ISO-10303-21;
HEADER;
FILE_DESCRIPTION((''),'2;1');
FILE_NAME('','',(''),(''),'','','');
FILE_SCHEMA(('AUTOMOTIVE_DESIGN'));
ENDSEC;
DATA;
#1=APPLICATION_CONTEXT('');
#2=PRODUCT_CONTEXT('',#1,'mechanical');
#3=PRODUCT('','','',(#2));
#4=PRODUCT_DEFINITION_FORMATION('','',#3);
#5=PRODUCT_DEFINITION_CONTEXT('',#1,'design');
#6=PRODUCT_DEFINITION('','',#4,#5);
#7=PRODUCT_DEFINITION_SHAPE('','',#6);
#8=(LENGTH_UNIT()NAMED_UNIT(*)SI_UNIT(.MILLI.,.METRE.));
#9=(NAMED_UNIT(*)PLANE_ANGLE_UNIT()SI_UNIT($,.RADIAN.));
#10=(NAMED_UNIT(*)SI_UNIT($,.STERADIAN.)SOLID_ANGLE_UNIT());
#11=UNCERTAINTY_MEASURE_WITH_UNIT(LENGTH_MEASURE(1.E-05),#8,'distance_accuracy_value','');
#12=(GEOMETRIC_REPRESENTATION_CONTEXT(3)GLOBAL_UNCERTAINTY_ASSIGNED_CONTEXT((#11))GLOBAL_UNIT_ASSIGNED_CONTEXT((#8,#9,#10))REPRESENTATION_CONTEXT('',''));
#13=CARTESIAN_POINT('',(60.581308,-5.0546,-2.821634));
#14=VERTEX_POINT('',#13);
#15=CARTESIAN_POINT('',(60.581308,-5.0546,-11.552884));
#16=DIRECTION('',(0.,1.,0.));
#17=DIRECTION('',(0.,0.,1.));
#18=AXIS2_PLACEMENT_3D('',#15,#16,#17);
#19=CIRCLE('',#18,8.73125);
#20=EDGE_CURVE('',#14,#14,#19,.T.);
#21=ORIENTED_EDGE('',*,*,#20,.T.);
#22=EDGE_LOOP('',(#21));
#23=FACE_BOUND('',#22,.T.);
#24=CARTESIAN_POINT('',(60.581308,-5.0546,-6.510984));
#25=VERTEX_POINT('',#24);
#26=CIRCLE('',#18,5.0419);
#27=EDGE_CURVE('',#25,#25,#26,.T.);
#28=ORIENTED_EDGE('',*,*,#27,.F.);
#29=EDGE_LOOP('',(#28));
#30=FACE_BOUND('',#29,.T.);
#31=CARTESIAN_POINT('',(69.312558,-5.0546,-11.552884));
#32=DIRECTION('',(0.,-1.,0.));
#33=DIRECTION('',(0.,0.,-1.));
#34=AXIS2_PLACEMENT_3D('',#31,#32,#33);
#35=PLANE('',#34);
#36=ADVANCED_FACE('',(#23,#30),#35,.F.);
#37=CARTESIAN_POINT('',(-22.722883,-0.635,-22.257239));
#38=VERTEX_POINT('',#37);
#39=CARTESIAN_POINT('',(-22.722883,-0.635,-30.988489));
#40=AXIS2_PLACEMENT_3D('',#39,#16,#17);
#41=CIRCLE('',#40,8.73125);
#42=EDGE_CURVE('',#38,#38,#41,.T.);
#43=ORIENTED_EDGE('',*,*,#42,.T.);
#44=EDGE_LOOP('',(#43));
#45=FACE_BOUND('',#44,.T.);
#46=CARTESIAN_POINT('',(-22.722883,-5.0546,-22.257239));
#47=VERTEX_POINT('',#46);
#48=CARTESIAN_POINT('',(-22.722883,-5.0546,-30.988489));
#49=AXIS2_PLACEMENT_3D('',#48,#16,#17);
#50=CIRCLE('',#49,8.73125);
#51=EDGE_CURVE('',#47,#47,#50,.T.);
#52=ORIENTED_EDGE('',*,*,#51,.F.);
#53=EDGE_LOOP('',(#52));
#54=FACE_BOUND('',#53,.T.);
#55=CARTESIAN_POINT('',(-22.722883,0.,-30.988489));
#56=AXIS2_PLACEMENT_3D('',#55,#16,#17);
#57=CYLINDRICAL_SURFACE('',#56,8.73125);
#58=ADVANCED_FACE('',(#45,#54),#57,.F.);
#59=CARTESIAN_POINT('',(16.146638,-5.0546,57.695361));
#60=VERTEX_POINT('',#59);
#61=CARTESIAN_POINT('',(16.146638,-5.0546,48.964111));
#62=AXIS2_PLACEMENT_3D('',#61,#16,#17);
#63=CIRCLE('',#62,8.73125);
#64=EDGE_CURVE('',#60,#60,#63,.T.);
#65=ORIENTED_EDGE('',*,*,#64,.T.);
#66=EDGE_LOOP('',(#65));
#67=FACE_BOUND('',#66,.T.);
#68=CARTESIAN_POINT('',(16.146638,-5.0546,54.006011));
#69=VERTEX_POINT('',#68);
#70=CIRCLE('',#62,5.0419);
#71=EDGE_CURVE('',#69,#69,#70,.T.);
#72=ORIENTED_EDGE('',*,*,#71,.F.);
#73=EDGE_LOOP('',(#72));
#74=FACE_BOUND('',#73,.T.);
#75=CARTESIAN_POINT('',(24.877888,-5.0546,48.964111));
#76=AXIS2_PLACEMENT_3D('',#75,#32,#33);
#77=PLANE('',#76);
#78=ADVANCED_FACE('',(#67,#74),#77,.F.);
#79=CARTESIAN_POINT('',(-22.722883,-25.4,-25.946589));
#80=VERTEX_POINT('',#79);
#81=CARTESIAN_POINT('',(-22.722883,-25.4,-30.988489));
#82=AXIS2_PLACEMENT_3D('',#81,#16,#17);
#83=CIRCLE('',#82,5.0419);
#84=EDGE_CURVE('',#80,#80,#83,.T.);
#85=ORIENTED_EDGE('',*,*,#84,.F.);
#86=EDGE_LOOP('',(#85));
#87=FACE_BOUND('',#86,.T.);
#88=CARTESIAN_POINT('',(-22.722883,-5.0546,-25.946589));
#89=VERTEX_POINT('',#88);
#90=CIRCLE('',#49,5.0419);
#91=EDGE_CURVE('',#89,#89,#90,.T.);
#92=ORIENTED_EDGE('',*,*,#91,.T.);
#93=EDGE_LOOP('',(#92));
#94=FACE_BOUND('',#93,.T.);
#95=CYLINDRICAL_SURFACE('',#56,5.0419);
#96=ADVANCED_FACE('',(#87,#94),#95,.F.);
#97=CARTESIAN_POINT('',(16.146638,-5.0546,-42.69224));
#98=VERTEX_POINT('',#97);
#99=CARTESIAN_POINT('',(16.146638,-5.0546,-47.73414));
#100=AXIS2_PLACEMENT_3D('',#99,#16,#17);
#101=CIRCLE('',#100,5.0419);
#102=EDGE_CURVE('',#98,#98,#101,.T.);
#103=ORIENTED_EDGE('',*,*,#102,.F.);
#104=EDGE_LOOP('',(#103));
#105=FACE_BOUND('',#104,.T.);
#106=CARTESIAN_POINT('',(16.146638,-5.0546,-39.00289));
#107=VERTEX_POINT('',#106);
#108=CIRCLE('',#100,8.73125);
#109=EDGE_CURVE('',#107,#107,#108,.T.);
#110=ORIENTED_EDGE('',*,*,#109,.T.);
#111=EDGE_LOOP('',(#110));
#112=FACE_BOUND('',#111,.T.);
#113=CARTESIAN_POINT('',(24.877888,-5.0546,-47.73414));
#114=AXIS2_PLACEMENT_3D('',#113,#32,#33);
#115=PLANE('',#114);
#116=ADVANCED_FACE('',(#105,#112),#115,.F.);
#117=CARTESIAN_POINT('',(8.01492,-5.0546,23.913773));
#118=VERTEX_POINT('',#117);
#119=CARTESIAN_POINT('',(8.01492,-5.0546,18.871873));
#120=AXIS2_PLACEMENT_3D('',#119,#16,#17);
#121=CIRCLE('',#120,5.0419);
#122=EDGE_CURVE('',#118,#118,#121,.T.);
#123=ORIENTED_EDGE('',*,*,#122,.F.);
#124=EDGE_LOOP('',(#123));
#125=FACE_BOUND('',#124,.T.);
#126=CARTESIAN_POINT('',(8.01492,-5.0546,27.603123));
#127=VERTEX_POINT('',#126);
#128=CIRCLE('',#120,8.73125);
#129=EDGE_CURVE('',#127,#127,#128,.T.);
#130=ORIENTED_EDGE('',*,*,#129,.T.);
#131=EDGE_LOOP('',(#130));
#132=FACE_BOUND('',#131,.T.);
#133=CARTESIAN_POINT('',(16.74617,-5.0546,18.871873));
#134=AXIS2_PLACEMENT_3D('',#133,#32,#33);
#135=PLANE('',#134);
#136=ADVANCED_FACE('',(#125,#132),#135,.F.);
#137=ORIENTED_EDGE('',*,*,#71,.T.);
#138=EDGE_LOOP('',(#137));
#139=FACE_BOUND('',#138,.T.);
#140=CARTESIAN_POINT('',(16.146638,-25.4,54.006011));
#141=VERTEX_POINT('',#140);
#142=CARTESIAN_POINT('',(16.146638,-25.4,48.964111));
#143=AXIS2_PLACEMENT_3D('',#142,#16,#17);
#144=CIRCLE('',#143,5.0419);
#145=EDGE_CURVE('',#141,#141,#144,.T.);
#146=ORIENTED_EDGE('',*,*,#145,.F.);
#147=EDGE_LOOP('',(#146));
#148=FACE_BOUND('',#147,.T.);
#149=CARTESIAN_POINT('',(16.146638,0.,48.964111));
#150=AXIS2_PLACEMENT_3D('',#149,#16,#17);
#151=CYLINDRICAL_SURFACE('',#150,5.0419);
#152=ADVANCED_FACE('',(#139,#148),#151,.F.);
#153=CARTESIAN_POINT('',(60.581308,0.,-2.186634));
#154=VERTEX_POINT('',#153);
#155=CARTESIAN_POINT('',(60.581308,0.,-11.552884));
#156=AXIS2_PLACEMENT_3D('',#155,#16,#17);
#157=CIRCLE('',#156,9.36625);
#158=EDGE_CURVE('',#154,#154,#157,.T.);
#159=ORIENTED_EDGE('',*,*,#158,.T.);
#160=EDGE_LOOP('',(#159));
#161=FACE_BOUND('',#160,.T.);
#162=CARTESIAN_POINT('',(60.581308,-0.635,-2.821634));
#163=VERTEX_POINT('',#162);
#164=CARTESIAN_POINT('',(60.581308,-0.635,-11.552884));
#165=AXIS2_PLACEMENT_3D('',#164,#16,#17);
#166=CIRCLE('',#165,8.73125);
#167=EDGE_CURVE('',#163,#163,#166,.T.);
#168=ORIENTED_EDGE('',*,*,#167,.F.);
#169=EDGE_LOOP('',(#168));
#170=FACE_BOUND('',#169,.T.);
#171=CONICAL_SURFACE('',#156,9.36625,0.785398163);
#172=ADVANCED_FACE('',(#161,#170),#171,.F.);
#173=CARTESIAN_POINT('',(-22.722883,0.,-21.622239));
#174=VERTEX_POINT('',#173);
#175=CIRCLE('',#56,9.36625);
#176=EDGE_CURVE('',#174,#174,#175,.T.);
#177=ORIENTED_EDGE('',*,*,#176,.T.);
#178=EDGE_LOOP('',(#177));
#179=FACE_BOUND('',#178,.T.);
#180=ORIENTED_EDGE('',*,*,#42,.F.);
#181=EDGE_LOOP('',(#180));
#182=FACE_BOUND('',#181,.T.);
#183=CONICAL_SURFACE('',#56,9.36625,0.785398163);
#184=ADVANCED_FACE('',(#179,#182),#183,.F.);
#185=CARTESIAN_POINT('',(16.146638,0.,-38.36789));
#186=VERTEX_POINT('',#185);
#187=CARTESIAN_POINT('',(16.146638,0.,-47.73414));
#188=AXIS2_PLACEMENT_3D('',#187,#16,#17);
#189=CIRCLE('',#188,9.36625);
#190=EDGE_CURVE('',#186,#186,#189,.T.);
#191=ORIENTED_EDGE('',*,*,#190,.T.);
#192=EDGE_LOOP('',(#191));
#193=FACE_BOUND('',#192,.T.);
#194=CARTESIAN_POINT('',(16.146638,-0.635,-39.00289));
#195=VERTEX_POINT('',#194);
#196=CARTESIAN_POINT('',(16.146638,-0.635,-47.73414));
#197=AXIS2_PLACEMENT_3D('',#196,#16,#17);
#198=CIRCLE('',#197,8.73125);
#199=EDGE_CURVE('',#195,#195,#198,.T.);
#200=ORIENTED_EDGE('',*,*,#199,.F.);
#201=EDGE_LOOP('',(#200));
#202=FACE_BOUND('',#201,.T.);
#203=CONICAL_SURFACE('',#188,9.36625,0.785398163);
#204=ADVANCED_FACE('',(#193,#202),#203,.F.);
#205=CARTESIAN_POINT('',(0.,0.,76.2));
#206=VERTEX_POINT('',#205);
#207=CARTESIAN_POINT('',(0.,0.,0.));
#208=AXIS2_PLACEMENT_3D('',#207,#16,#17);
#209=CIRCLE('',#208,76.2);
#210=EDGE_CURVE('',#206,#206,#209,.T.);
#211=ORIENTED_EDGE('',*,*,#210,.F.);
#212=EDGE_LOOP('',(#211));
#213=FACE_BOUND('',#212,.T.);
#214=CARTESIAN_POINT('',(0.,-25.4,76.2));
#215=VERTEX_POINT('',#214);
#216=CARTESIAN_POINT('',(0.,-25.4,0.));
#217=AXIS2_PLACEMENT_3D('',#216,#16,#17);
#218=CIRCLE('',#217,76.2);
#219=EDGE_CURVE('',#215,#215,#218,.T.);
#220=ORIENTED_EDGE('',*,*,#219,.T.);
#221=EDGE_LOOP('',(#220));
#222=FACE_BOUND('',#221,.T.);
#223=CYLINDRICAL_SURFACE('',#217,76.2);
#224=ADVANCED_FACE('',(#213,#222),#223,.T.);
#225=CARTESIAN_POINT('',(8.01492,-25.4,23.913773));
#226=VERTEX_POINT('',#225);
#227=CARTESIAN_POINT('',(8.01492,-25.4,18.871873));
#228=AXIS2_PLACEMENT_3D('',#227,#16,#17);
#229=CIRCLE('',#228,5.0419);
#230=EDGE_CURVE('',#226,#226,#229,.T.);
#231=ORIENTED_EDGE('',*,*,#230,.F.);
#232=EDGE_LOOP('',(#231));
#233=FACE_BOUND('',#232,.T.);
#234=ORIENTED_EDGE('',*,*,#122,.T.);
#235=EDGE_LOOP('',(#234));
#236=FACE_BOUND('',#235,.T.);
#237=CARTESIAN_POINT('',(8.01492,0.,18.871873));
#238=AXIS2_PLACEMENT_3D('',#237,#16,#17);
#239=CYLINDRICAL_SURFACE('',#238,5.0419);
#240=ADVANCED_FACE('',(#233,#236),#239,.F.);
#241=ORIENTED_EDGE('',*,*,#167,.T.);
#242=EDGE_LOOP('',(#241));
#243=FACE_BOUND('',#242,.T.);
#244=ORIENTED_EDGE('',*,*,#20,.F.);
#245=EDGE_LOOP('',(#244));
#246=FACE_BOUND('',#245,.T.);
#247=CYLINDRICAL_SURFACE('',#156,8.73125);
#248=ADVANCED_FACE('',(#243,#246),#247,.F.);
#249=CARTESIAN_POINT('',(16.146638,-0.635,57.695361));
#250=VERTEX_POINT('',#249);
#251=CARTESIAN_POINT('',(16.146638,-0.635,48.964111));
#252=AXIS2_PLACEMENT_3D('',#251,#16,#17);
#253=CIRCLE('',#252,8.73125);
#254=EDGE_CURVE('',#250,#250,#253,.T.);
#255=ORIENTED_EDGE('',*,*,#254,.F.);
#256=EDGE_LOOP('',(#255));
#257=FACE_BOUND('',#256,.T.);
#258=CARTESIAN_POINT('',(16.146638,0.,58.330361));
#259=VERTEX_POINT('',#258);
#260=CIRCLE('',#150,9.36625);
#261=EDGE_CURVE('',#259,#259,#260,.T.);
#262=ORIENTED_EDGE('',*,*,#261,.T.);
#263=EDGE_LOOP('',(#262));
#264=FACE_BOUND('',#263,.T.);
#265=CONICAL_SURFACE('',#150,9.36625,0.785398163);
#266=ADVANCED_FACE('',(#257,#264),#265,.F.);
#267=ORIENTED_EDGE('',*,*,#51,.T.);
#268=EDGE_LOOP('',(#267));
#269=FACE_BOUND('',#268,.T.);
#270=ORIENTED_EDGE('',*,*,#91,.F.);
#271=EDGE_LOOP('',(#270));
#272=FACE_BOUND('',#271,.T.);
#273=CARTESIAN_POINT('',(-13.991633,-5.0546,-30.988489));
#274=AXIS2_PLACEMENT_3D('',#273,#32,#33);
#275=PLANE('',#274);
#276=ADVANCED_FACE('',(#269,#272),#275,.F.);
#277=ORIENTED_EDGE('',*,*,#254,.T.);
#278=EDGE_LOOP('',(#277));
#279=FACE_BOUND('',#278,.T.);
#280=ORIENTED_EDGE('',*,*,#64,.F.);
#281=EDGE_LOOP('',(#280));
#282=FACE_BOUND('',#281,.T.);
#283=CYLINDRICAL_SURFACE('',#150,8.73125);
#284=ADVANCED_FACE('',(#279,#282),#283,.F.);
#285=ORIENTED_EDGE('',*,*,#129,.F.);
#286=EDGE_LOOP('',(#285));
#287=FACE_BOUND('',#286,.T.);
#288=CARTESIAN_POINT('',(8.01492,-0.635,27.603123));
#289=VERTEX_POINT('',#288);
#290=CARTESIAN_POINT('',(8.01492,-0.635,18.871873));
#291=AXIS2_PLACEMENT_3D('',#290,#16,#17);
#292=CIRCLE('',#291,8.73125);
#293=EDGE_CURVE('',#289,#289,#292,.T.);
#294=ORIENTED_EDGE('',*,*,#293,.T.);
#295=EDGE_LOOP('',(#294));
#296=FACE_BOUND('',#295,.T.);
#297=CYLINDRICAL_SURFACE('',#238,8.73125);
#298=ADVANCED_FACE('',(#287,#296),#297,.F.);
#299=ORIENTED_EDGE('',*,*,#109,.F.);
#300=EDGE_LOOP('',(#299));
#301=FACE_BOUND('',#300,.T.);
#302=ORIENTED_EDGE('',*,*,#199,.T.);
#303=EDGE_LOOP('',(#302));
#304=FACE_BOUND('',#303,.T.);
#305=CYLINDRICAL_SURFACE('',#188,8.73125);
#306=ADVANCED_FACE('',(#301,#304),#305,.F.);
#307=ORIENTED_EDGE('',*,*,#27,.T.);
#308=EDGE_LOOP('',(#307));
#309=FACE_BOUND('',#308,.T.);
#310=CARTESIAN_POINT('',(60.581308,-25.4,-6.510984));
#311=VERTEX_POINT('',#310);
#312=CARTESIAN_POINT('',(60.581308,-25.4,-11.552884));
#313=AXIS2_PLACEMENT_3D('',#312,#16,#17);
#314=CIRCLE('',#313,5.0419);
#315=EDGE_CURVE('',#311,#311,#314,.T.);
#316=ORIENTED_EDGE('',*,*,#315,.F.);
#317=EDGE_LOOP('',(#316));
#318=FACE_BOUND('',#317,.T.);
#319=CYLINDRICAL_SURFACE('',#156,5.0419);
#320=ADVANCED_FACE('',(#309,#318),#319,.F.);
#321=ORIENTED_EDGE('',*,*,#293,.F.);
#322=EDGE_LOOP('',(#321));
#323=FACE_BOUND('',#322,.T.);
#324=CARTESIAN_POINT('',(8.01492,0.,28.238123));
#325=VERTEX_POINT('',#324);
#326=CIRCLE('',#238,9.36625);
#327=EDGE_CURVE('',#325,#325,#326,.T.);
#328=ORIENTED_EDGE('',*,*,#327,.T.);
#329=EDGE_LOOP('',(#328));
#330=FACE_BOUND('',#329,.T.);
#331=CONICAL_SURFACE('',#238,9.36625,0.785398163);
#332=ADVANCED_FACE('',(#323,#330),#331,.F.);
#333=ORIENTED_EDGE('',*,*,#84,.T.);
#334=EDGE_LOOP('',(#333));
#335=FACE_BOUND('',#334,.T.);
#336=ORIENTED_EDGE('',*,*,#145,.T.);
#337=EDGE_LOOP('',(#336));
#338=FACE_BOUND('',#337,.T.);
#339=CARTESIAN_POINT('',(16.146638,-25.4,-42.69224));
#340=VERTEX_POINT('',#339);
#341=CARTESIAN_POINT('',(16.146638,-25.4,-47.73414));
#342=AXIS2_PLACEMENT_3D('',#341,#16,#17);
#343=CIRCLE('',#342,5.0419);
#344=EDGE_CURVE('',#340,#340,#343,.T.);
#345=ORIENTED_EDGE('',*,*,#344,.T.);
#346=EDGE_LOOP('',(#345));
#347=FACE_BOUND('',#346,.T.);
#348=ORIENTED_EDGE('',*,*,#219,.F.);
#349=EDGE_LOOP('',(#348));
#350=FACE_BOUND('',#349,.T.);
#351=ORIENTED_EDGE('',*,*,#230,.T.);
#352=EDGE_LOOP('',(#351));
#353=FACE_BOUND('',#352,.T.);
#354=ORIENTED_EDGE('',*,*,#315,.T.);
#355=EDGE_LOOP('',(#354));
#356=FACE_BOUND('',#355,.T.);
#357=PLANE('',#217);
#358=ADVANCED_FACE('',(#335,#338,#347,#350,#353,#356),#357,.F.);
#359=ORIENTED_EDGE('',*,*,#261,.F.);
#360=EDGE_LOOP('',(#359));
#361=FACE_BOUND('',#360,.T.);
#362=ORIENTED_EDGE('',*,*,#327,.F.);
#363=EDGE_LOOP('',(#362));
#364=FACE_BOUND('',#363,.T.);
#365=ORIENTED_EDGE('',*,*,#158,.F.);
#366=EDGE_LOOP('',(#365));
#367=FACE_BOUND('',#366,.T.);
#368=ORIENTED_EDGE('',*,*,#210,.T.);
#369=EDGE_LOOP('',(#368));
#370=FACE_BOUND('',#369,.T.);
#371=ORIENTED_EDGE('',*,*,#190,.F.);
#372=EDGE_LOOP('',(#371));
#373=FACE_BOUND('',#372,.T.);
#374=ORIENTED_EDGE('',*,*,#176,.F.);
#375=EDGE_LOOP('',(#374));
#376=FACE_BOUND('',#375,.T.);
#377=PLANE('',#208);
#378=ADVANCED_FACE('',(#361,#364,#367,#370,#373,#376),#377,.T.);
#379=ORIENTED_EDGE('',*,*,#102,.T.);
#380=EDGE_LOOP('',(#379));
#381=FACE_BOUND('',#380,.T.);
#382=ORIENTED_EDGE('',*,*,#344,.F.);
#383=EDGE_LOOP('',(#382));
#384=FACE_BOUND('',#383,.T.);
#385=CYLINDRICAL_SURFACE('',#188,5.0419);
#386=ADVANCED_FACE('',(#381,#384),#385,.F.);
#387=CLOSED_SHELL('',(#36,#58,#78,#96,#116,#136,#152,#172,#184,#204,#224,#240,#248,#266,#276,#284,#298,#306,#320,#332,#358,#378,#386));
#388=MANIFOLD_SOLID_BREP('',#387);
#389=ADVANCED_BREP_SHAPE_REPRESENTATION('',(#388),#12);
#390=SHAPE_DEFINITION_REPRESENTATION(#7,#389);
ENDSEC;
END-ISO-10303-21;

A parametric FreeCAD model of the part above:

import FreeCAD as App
import Part
import Sketcher
from FreeCAD import Vector
Q = App.Units.Quantity


def add_polygon(sketch, points):
    """Adds a closed chain of lines whose ends are joined by coincident constraints."""
    first, n = sketch.GeometryCount, len(points)
    for a, b in zip(points, points[1:] + points[:1]):
        sketch.addGeometry(Part.LineSegment(App.Vector(*a, 0), App.Vector(*b, 0)), False)
    for i in range(n):
        sketch.addConstraint(Sketcher.Constraint("Coincident", first + i, 2, first + (i + 1) % n, 1))

doc = App.newDocument("Part")
body = doc.addObject("PartDesign::Body", "Body")

sketch1 = doc.addObject("Sketcher::SketchObject", "Sketch")
body.addObject(sketch1)
sketch1.AttachmentSupport = (doc.XZ_Plane, [""])
sketch1.MapMode = "FlatFace"
sketch1.addGeometry(Part.Circle(Vector(0, 0, 0), Vector(0, 0, 1), 76.2), False)
sketch1.addConstraint([
    Sketcher.Constraint("Coincident", 0, 3, -1, 1),
    Sketcher.Constraint("Diameter", 0, Q("6 in")),
])
pad1 = doc.addObject("PartDesign::Pad", "Pad")
body.addObject(pad1)
pad1.Profile = sketch1
pad1.Length = Q("1 in")

sketch2 = doc.addObject("Sketcher::SketchObject", "Sketch001")
body.addObject(sketch2)
sketch2.AttachmentSupport = (doc.YZ_Plane, [""])
sketch2.MapMode = "FlatFace"
sketch2.AttachmentOffset = App.Placement(Vector(0, 0, 60.581308), App.Rotation())
add_polygon(sketch2, [(-25.4, -11.552884), (0, -11.552884), (0, -2.186634), (-0.635, -2.821634), (-5.0546, -2.821634), (-5.0546, -6.510984), (-25.4, -6.510984)])
sketch2.addGeometry(Part.LineSegment(Vector(0, -11.552884, 0), Vector(-25.4, -11.552884, 0)), True)
sketch2.addConstraint([
    Sketcher.Constraint("Horizontal", 0),
    Sketcher.Constraint("Vertical", 1),
    Sketcher.Constraint("Horizontal", 3),
    Sketcher.Constraint("Vertical", 4),
    Sketcher.Constraint("Horizontal", 5),
    Sketcher.Constraint("Vertical", 6),
    Sketcher.Constraint("Horizontal", 7),
    Sketcher.Constraint("Coincident", 7, 1, 0, 2),
    Sketcher.Constraint("PointOnObject", 0, 2, -2),
    Sketcher.Constraint("Vertical", 5, 2, 7, 2),
    Sketcher.Constraint("DistanceX", 0, 1, 0, 2, Q("1 in")),
    Sketcher.Constraint("Angle", 2, Q("-135 deg")),
    Sketcher.Constraint("DistanceX", 3, 2, 3, 1, Q("0.174 in")),
    Sketcher.Constraint("DistanceX", 5, 2, 5, 1, Q("0.801 in")),
    Sketcher.Constraint("DistanceY", 6, 2, 6, 1, Q("0.1985 in")),
    Sketcher.Constraint("DistanceY", 0, 2, 2, 2, Q("0.34375 in")),
    Sketcher.Constraint("DistanceY", 0, 2, -1, 1, Q("11.552884 mm")),
])
groove = doc.addObject("PartDesign::Groove", "Groove")
body.addObject(groove)
groove.Profile = sketch2
groove.ReferenceAxis = (sketch2, ["Axis0"])
groove.Angle = 360
doc.recompute()

datumline = doc.addObject("PartDesign::Line", "DatumLine")
body.addObject(datumline)
datumline.Placement = App.Placement(Vector(0, 0, 0), App.Rotation(Vector(0, 0, 1), Vector(-0.591844613, 0, 0.806052079)))
linearpattern = doc.addObject("PartDesign::LinearPattern", "LinearPattern")
body.addObject(linearpattern)
linearpattern.Originals = [groove]
linearpattern.Direction = (datumline, [""])
linearpattern.Mode = "offset"
linearpattern.Offset = 75.07827
linearpattern.Occurrences = 2
body.Tip = linearpattern
doc.recompute()

datumline2 = doc.addObject("PartDesign::Line", "DatumLine001")
body.addObject(datumline2)
datumline2.Placement = App.Placement(Vector(0, 0, 0), App.Rotation(Vector(0, 0, 1), Vector(-0.865486357, 0, 0.500932496)))
linearpattern2 = doc.addObject("PartDesign::LinearPattern", "LinearPattern001")
body.addObject(linearpattern2)
linearpattern2.Originals = [groove]
linearpattern2.Direction = (datumline2, [""])
linearpattern2.Mode = "offset"
linearpattern2.Offset = 60.736241
linearpattern2.Occurrences = 2
body.Tip = linearpattern2
doc.recompute()

datumline3 = doc.addObject("PartDesign::Line", "DatumLine002")
body.addObject(datumline3)
datumline3.Placement = App.Placement(Vector(0, 0, 0), App.Rotation(Vector(0, 0, 1), Vector(-0.973846485, 0, -0.227207004)))
linearpattern3 = doc.addObject("PartDesign::LinearPattern", "LinearPattern002")
body.addObject(linearpattern3)
linearpattern3.Originals = [groove]
linearpattern3.Direction = (datumline3, [""])
linearpattern3.Mode = "offset"
linearpattern3.Offset = 85.541399
linearpattern3.Occurrences = 2
body.Tip = linearpattern3
doc.recompute()

datumline4 = doc.addObject("PartDesign::Line", "DatumLine003")
body.addObject(datumline4)
datumline4.Placement = App.Placement(Vector(0, 0, 0), App.Rotation(Vector(0, 0, 1), Vector(-0.775446632, 0, -0.631413115)))
linearpattern4 = doc.addObject("PartDesign::LinearPattern", "LinearPattern003")
body.addObject(linearpattern4)
linearpattern4.Originals = [groove]
linearpattern4.Direction = (datumline4, [""])
linearpattern4.Mode = "offset"
linearpattern4.Offset = 57.302035
linearpattern4.Occurrences = 2
body.Tip = linearpattern4

doc.recompute()
